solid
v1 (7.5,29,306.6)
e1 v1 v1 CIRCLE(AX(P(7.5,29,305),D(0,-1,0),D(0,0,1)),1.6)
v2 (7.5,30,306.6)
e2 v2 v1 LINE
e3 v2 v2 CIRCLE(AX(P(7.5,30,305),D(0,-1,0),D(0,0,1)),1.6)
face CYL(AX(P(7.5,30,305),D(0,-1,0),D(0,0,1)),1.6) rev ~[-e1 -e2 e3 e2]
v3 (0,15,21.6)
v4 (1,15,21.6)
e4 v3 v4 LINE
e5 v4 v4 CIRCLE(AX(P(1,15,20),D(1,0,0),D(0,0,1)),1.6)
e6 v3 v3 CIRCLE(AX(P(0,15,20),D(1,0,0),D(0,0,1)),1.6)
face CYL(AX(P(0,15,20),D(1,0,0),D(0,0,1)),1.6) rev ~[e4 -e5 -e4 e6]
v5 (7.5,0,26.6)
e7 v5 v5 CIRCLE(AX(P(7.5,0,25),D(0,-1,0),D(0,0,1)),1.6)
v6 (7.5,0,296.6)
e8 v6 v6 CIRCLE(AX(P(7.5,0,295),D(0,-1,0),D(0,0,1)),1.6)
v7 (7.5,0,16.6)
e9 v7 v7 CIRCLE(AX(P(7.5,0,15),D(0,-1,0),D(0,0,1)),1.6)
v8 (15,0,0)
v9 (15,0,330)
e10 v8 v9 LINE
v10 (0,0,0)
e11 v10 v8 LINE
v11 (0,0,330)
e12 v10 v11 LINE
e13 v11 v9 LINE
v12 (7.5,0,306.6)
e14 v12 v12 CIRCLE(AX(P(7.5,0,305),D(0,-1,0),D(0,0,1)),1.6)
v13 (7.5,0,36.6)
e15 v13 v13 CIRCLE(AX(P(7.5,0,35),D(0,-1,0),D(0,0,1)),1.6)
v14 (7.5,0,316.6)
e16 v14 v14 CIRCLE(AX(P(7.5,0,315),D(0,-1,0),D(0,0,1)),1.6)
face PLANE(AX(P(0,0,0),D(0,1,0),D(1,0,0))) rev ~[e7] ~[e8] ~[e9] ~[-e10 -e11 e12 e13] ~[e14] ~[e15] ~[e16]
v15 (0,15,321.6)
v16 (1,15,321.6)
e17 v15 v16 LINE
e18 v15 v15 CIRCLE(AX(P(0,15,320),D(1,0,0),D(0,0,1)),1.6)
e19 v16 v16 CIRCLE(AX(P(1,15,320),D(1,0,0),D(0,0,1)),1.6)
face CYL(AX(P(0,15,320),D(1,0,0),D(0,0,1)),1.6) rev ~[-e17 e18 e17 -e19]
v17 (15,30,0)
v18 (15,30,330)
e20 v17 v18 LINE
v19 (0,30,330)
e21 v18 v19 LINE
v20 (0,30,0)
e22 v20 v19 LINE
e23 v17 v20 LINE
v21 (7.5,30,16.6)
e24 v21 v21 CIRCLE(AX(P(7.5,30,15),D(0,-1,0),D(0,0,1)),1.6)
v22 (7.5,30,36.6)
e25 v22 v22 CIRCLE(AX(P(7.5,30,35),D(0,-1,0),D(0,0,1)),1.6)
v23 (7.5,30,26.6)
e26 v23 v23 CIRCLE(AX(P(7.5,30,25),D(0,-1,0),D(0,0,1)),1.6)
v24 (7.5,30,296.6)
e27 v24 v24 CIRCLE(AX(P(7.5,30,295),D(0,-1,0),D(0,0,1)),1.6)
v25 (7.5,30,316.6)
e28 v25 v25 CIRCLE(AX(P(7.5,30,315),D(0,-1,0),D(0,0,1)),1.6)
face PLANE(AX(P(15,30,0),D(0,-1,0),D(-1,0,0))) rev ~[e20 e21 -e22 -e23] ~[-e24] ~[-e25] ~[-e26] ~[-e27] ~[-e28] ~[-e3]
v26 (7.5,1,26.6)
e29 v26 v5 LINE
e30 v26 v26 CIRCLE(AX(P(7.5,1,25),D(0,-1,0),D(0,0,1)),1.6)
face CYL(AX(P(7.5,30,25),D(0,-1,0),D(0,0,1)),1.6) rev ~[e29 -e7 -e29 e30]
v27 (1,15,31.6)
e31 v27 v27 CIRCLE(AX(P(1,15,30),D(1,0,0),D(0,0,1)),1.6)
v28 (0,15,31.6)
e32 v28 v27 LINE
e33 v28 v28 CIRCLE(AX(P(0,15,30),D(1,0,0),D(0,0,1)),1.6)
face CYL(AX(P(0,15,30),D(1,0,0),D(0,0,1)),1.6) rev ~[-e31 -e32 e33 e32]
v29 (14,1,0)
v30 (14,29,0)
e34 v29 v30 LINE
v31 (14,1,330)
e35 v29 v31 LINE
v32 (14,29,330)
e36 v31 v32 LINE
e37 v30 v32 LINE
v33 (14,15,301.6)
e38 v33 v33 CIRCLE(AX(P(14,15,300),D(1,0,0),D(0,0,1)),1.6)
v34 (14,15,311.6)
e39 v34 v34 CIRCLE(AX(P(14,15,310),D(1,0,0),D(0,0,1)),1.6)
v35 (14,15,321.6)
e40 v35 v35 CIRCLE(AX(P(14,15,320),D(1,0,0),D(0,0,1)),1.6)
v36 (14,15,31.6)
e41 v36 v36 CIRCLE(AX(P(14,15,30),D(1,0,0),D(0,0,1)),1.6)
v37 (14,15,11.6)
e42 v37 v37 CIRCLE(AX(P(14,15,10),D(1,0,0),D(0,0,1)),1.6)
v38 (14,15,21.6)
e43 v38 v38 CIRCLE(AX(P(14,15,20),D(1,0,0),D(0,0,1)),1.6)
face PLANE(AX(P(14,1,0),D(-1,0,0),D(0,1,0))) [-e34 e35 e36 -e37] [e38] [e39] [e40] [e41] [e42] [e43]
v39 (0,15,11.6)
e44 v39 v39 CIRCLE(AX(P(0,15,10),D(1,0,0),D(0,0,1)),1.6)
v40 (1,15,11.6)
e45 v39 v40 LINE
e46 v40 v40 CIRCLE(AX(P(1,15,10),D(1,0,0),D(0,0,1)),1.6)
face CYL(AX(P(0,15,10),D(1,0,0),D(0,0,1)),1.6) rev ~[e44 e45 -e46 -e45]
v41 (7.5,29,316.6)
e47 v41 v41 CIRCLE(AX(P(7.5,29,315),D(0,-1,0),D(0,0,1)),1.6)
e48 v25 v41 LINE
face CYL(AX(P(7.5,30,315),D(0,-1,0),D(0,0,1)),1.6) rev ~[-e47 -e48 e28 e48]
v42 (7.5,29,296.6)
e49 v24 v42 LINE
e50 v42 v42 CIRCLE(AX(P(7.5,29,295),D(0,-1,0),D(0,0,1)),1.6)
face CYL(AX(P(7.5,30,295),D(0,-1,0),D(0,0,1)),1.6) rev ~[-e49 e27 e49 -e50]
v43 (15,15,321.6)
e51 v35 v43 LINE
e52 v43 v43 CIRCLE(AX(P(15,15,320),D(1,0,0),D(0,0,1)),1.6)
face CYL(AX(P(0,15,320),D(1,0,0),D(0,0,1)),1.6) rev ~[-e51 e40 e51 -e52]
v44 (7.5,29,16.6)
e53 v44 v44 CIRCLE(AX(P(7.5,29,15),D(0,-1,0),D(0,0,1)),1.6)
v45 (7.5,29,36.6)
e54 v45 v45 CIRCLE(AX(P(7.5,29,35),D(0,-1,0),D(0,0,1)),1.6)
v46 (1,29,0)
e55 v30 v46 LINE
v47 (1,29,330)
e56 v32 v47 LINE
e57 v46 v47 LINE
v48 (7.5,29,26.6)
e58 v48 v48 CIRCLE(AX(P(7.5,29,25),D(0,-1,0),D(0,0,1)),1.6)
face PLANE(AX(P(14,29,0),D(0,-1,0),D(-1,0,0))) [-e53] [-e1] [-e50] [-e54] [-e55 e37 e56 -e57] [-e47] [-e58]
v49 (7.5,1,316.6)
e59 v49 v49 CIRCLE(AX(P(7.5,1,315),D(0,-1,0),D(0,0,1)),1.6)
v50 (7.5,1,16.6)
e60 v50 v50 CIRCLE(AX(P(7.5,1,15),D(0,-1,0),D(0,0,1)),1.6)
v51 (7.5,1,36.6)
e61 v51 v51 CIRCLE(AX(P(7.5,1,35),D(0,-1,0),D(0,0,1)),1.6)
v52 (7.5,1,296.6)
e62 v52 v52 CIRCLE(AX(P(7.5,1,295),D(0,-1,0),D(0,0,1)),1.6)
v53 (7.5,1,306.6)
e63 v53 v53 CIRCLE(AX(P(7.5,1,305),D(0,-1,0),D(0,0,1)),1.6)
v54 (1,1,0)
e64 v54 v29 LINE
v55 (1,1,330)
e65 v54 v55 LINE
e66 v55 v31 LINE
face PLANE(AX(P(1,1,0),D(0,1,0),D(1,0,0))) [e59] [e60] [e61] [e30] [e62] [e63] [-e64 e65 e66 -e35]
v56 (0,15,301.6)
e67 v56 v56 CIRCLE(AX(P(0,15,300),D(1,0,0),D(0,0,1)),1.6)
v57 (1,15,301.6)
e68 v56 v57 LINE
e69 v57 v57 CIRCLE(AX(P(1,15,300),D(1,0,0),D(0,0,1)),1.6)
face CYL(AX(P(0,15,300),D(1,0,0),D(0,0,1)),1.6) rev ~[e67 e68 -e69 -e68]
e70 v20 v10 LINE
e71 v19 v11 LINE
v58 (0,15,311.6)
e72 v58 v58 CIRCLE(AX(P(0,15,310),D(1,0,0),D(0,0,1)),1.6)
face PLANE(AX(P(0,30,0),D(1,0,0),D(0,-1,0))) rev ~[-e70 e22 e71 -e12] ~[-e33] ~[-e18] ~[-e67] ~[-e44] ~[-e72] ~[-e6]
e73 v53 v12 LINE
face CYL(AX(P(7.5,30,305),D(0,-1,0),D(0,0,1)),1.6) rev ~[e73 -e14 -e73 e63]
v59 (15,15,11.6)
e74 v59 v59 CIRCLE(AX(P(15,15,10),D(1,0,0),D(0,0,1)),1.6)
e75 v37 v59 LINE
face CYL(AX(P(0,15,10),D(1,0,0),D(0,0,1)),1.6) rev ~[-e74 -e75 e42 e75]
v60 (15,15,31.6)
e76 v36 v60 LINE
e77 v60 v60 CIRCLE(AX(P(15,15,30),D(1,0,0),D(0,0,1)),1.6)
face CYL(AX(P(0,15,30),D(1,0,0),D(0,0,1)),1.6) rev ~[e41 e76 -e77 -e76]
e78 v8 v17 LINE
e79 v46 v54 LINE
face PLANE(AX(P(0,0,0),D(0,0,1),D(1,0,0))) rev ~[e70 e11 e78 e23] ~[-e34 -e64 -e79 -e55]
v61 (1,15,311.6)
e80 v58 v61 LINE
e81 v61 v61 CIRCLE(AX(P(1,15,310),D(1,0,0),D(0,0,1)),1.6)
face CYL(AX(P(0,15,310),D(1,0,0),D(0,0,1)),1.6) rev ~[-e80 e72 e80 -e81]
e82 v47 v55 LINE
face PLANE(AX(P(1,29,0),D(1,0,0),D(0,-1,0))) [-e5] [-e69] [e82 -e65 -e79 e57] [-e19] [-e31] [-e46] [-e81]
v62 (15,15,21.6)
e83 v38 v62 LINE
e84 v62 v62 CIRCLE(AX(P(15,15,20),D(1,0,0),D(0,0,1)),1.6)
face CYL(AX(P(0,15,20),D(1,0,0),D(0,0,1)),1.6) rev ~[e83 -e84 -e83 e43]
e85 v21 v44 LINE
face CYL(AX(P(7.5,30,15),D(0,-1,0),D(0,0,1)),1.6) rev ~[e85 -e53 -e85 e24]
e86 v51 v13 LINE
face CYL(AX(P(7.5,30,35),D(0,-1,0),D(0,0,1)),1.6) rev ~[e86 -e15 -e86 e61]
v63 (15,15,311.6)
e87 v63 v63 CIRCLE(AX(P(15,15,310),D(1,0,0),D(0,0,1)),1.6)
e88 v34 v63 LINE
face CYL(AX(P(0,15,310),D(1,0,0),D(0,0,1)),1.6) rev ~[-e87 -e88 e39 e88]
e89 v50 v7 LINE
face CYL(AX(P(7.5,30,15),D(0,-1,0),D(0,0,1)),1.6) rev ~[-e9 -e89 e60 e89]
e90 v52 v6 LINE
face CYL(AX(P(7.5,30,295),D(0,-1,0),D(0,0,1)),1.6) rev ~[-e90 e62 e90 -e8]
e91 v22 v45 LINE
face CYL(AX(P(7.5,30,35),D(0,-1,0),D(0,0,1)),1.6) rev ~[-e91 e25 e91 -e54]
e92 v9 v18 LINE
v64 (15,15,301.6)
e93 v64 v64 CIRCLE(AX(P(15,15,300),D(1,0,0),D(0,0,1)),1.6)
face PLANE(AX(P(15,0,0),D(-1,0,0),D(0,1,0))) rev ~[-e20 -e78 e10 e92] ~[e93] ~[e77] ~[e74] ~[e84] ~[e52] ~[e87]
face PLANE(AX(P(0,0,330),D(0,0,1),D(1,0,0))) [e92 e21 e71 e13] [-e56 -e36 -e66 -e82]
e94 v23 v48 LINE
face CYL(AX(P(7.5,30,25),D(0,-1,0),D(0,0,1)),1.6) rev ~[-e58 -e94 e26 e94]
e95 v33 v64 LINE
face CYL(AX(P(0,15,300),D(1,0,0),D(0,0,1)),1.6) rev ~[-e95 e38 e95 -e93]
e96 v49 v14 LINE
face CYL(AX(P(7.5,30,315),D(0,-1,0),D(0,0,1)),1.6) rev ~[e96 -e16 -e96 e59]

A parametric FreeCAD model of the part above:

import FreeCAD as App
import Part
import Sketcher

V = App.Vector
Q = App.Units.Quantity

doc = App.newDocument("Part")
body = doc.addObject("PartDesign::Body", "Body")

sketch1 = doc.addObject("Sketcher::SketchObject", "Sketch")
body.addObject(sketch1)
sketch1.AttachmentSupport = (doc.XY_Plane, [""])
sketch1.MapMode = "FlatFace"
sketch1.addGeometry(Part.LineSegment(V(0, 30, 0), V(0, 0, 0)), False)
sketch1.addGeometry(Part.LineSegment(V(0, 0, 0), V(15, 0, 0)), False)
sketch1.addGeometry(Part.LineSegment(V(15, 0, 0), V(15, 30, 0)), False)
sketch1.addGeometry(Part.LineSegment(V(15, 30, 0), V(0, 30, 0)), False)
sketch1.addGeometry(Part.LineSegment(V(14, 1, 0), V(1, 1, 0)), False)
sketch1.addGeometry(Part.LineSegment(V(1, 1, 0), V(1, 29, 0)), False)
sketch1.addGeometry(Part.LineSegment(V(1, 29, 0), V(14, 29, 0)), False)
sketch1.addGeometry(Part.LineSegment(V(14, 29, 0), V(14, 1, 0)), False)
sketch1.addConstraint(Sketcher.Constraint("Coincident", 0, 2, 1, 1))
sketch1.addConstraint(Sketcher.Constraint("Coincident", 1, 2, 2, 1))
sketch1.addConstraint(Sketcher.Constraint("Coincident", 2, 2, 3, 1))
sketch1.addConstraint(Sketcher.Constraint("Coincident", 3, 2, 0, 1))
sketch1.addConstraint(Sketcher.Constraint("Coincident", 4, 2, 5, 1))
sketch1.addConstraint(Sketcher.Constraint("Coincident", 5, 2, 6, 1))
sketch1.addConstraint(Sketcher.Constraint("Coincident", 6, 2, 7, 1))
sketch1.addConstraint(Sketcher.Constraint("Coincident", 7, 2, 4, 1))
sketch1.addConstraint(Sketcher.Constraint("Vertical", 0))
sketch1.addConstraint(Sketcher.Constraint("Horizontal", 1))
sketch1.addConstraint(Sketcher.Constraint("Vertical", 2))
sketch1.addConstraint(Sketcher.Constraint("Horizontal", 3))
sketch1.addConstraint(Sketcher.Constraint("Horizontal", 4))
sketch1.addConstraint(Sketcher.Constraint("Vertical", 5))
sketch1.addConstraint(Sketcher.Constraint("Horizontal", 6))
sketch1.addConstraint(Sketcher.Constraint("Vertical", 7))
sketch1.addConstraint(Sketcher.Constraint("Coincident", 0, 2, -1, 1))
sketch1.addConstraint(Sketcher.Constraint("DistanceX", 1, 1, 1, 2, Q("15 mm")))
sketch1.addConstraint(Sketcher.Constraint("DistanceX", 4, 2, 4, 1, Q("13 mm")))
sketch1.addConstraint(Sketcher.Constraint("DistanceY", 0, 2, 0, 1, Q("30 mm")))
sketch1.addConstraint(Sketcher.Constraint("DistanceY", 5, 1, 5, 2, Q("28 mm")))
sketch1.addConstraint(Sketcher.Constraint("DistanceX", -1, 1, 4, 2, Q("1 mm")))
sketch1.addConstraint(Sketcher.Constraint("DistanceY", -1, 1, 4, 2, Q("1 mm")))
pad1 = doc.addObject("PartDesign::Pad", "Pad")
body.addObject(pad1)
pad1.Profile = sketch1
pad1.Length = 330

sketch2 = doc.addObject("Sketcher::SketchObject", "Sketch001")
body.addObject(sketch2)
sketch2.AttachmentSupport = (doc.XZ_Plane, [""])
sketch2.MapMode = "FlatFace"
sketch2.AttachmentOffset = App.Placement(V(0, 0, -30), App.Rotation())
sketch2.addGeometry(Part.Circle(V(7.5, 315, 0), V(0, 0, 1), 1.6), False)
sketch2.addGeometry(Part.Circle(V(7.5, 305, 0), V(0, 0, 1), 1.6), False)
sketch2.addGeometry(Part.Circle(V(7.5, 295, 0), V(0, 0, 1), 1.6), False)
sketch2.addGeometry(Part.Circle(V(7.5, 15, 0), V(0, 0, 1), 1.6), False)
sketch2.addGeometry(Part.Circle(V(7.5, 25, 0), V(0, 0, 1), 1.6), False)
sketch2.addGeometry(Part.Circle(V(7.5, 35, 0), V(0, 0, 1), 1.6), False)
sketch2.addConstraint(Sketcher.Constraint("Equal", 0, 1))
sketch2.addConstraint(Sketcher.Constraint("Equal", 1, 2))
sketch2.addConstraint(Sketcher.Constraint("Equal", 2, 3))
sketch2.addConstraint(Sketcher.Constraint("Equal", 3, 4))
sketch2.addConstraint(Sketcher.Constraint("Equal", 4, 5))
sketch2.addConstraint(Sketcher.Constraint("Vertical", 0, 3, 1, 3))
sketch2.addConstraint(Sketcher.Constraint("Vertical", 1, 3, 2, 3))
sketch2.addConstraint(Sketcher.Constraint("Vertical", 2, 3, 3, 3))
sketch2.addConstraint(Sketcher.Constraint("Vertical", 3, 3, 4, 3))
sketch2.addConstraint(Sketcher.Constraint("Vertical", 4, 3, 5, 3))
sketch2.addConstraint(Sketcher.Constraint("Diameter", 0, Q("3.2 mm")))
sketch2.addConstraint(Sketcher.Constraint("DistanceY", -1, 1, 0, 3, Q("315 mm")))
sketch2.addConstraint(Sketcher.Constraint("DistanceY", -1, 1, 1, 3, Q("305 mm")))
sketch2.addConstraint(Sketcher.Constraint("DistanceY", -1, 1, 2, 3, Q("295 mm")))
sketch2.addConstraint(Sketcher.Constraint("DistanceY", -1, 1, 3, 3, Q("15 mm")))
sketch2.addConstraint(Sketcher.Constraint("DistanceY", -1, 1, 4, 3, Q("25 mm")))
sketch2.addConstraint(Sketcher.Constraint("DistanceY", -1, 1, 5, 3, Q("35 mm")))
sketch2.addConstraint(Sketcher.Constraint("DistanceX", -1, 1, 0, 3, Q("7.5 mm")))
doc.recompute()
hole = doc.addObject("PartDesign::Hole", "Hole")
body.addObject(hole)
hole.Profile = sketch2
hole.ThreadType = "None"
hole.Diameter = 3.2
hole.DepthType = "Dimension"
hole.Depth = 30
hole.DrillPoint = "Flat"
hole.Reversed = True

sketch3 = doc.addObject("Sketcher::SketchObject", "Sketch002")
body.addObject(sketch3)
sketch3.AttachmentSupport = (doc.YZ_Plane, [""])
sketch3.MapMode = "FlatFace"
sketch3.addGeometry(Part.Circle(V(15, 10, 0), V(0, 0, 1), 1.6), False)
sketch3.addGeometry(Part.Circle(V(15, 20, 0), V(0, 0, 1), 1.6), False)
sketch3.addGeometry(Part.Circle(V(15, 30, 0), V(0, 0, 1), 1.6), False)
sketch3.addGeometry(Part.Circle(V(15, 300, 0), V(0, 0, 1), 1.6), False)
sketch3.addGeometry(Part.Circle(V(15, 310, 0), V(0, 0, 1), 1.6), False)
sketch3.addGeometry(Part.Circle(V(15, 320, 0), V(0, 0, 1), 1.6), False)
sketch3.addConstraint(Sketcher.Constraint("Equal", 0, 1))
sketch3.addConstraint(Sketcher.Constraint("Equal", 1, 2))
sketch3.addConstraint(Sketcher.Constraint("Equal", 2, 3))
sketch3.addConstraint(Sketcher.Constraint("Equal", 3, 4))
sketch3.addConstraint(Sketcher.Constraint("Equal", 4, 5))
sketch3.addConstraint(Sketcher.Constraint("Vertical", 0, 3, 1, 3))
sketch3.addConstraint(Sketcher.Constraint("Vertical", 1, 3, 2, 3))
sketch3.addConstraint(Sketcher.Constraint("Vertical", 2, 3, 3, 3))
sketch3.addConstraint(Sketcher.Constraint("Vertical", 3, 3, 4, 3))
sketch3.addConstraint(Sketcher.Constraint("Vertical", 4, 3, 5, 3))
sketch3.addConstraint(Sketcher.Constraint("Diameter", 0, Q("3.2 mm")))
sketch3.addConstraint(Sketcher.Constraint("DistanceX", -1, 1, 0, 3, Q("15 mm")))
sketch3.addConstraint(Sketcher.Constraint("DistanceY", -1, 1, 0, 3, Q("10 mm")))
sketch3.addConstraint(Sketcher.Constraint("DistanceY", -1, 1, 1, 3, Q("20 mm")))
sketch3.addConstraint(Sketcher.Constraint("DistanceY", -1, 1, 2, 3, Q("30 mm")))
sketch3.addConstraint(Sketcher.Constraint("DistanceY", -1, 1, 3, 3, Q("300 mm")))
sketch3.addConstraint(Sketcher.Constraint("DistanceY", -1, 1, 4, 3, Q("310 mm")))
sketch3.addConstraint(Sketcher.Constraint("DistanceY", -1, 1, 5, 3, Q("320 mm")))
doc.recompute()
hole2 = doc.addObject("PartDesign::Hole", "Hole001")
body.addObject(hole2)
hole2.Profile = sketch3
hole2.ThreadType = "None"
hole2.Diameter = 3.2
hole2.DepthType = "Dimension"
hole2.Depth = 15
hole2.DrillPoint = "Flat"
hole2.Reversed = True

doc.recompute()
